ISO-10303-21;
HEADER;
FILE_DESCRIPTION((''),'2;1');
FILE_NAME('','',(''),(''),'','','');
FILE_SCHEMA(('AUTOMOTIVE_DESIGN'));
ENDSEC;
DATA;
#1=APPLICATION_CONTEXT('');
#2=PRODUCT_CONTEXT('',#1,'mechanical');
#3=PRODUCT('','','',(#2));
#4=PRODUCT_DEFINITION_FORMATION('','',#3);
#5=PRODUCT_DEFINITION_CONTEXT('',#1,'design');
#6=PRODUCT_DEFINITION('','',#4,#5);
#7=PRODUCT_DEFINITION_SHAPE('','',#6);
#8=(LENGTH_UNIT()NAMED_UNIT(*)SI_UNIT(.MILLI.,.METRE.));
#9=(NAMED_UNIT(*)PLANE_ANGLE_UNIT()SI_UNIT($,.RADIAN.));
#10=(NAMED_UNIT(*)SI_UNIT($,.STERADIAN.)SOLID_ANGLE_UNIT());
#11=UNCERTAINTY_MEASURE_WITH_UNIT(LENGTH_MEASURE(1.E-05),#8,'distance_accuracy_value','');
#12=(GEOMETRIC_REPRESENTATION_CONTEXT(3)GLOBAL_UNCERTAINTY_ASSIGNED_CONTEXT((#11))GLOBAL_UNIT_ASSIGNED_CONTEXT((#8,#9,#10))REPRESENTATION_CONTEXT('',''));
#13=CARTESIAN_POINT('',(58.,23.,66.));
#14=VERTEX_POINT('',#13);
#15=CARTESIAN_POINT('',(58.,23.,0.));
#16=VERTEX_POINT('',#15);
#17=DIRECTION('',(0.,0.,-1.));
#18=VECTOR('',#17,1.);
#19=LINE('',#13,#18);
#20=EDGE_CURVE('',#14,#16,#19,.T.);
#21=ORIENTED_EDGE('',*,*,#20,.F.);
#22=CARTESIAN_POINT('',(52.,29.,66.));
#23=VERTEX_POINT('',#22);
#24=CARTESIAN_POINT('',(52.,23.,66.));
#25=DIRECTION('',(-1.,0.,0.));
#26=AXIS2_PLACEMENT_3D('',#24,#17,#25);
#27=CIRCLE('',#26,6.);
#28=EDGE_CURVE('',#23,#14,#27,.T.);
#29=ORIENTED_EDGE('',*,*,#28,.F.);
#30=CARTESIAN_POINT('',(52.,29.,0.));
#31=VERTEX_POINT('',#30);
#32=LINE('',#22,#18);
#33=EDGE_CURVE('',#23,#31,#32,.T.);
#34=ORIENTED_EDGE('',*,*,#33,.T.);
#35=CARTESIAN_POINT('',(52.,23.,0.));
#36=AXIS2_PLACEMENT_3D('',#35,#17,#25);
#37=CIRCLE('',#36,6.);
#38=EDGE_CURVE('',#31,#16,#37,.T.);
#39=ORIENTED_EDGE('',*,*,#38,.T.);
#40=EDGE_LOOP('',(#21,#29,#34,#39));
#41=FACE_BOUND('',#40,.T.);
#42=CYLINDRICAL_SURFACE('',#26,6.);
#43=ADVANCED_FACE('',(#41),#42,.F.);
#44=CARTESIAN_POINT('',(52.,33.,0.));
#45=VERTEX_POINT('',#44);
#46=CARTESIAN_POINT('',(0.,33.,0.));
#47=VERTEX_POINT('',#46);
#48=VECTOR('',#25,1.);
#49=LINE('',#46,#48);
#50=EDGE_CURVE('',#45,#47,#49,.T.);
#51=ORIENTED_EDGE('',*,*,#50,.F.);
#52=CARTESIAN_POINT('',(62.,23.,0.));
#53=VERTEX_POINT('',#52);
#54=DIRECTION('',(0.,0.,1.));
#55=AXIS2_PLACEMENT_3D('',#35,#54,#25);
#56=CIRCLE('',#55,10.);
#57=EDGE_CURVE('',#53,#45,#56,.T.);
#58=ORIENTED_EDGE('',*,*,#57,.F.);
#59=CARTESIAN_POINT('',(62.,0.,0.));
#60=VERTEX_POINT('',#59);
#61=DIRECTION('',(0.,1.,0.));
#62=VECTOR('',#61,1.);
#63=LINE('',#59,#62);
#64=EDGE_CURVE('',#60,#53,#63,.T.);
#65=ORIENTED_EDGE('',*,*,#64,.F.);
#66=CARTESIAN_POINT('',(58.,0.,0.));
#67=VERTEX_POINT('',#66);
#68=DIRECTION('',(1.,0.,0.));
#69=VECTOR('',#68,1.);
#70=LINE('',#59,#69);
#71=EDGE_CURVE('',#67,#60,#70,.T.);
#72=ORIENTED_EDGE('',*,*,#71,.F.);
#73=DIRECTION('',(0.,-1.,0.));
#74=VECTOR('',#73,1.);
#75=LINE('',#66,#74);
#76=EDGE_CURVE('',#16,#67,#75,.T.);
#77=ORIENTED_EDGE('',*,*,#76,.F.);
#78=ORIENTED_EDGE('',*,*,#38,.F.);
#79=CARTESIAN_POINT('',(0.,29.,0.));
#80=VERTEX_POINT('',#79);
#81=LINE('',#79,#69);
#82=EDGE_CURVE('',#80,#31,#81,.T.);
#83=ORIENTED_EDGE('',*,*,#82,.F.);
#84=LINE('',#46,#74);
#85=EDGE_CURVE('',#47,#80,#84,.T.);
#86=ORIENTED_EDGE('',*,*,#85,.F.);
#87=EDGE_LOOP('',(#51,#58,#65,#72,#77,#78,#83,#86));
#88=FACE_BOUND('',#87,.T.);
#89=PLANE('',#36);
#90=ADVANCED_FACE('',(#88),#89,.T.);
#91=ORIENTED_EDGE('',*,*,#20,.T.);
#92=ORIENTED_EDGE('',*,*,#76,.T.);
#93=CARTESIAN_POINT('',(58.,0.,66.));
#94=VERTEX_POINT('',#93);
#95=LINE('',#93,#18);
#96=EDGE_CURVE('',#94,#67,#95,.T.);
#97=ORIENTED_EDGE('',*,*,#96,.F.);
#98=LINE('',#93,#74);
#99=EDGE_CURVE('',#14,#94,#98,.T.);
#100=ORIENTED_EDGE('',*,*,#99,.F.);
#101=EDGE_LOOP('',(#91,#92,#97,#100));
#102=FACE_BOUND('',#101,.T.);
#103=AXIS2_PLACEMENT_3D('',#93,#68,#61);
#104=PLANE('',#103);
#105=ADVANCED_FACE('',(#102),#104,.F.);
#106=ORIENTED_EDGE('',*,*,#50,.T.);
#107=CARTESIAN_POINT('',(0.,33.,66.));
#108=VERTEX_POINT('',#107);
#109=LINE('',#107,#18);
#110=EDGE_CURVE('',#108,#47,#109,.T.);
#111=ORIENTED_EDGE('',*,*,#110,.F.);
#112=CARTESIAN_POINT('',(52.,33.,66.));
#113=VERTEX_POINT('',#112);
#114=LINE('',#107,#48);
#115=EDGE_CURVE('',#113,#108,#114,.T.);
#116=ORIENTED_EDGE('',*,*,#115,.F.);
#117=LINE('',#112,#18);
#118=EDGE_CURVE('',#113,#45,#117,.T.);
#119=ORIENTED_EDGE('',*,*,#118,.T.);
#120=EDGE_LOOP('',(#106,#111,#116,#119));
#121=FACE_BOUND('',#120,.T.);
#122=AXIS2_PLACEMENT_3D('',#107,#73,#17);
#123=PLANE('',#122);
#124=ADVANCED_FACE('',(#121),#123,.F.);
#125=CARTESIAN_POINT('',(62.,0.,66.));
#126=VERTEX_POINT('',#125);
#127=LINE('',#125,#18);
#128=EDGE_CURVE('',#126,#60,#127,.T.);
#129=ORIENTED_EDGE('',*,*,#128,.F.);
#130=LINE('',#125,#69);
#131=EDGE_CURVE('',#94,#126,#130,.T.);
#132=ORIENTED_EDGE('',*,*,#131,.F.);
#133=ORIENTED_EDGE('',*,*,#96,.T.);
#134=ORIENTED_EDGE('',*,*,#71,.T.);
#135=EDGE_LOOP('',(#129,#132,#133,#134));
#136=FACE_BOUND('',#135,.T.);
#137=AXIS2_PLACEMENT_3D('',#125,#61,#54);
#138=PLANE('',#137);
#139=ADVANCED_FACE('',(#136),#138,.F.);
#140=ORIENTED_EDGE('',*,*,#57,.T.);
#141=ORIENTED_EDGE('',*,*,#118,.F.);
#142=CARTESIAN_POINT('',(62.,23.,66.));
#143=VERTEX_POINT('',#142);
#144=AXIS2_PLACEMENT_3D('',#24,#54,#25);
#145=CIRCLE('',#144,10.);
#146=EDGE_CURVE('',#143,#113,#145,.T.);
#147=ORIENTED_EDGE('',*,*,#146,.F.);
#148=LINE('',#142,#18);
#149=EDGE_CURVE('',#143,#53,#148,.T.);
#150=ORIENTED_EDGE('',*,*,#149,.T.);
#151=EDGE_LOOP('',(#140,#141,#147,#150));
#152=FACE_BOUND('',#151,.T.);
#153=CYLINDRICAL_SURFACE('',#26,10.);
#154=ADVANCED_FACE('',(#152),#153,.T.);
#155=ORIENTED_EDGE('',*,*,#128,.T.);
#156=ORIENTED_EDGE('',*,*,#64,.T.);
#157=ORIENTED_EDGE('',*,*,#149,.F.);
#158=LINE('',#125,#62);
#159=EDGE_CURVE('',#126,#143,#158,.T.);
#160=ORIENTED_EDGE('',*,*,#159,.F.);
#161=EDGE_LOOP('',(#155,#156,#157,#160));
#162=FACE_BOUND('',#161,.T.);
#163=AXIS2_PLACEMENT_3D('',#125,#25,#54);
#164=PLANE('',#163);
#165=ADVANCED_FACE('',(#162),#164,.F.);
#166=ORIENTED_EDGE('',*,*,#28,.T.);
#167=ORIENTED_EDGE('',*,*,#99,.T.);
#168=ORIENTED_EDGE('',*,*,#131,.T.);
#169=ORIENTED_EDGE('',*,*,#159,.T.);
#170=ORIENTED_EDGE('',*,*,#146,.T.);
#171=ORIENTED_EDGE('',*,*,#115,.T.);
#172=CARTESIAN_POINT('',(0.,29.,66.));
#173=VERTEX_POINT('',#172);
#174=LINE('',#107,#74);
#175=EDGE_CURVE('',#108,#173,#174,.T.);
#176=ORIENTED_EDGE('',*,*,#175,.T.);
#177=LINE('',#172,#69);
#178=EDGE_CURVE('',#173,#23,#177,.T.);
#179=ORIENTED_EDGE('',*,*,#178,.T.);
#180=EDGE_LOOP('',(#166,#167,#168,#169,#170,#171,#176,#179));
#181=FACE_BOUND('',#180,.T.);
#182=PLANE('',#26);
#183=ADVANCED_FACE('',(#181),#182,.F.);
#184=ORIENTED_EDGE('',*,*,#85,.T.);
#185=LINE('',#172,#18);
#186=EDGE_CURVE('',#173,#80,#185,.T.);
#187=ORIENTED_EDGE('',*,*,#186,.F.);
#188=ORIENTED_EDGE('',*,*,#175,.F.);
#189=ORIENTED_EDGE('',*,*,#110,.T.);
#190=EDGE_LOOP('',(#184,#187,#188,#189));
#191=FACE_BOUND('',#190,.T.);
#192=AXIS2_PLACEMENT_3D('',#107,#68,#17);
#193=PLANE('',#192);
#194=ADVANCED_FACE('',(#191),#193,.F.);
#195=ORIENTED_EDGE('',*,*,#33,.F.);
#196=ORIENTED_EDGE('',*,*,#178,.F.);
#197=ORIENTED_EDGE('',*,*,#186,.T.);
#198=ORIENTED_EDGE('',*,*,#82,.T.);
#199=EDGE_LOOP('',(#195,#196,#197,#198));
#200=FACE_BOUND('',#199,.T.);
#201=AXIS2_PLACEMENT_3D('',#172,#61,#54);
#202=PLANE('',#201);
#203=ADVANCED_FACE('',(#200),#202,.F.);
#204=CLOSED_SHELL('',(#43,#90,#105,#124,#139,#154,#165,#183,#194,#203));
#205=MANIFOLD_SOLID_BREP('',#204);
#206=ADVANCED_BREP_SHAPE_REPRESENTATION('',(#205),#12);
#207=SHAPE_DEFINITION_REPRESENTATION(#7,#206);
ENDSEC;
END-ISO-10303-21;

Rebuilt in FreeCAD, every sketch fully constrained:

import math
import FreeCAD as App
import Part
import Sketcher

V = App.Vector

doc = App.newDocument("Part")
body = doc.addObject("PartDesign::Body", "Body")

sketch1 = body.newObject("Sketcher::SketchObject", "Sketch")
sketch1.AttachmentSupport = (doc.getObject("XY_Plane"), [""])
sketch1.MapMode = "FlatFace"
sketch1.addGeometry(Part.LineSegment(V(0, 29, 0), V(52, 29, 0)), False)
sketch1.addGeometry(Part.ArcOfCircle(Part.Circle(V(52, 23, 0), V(0, 0, 1), 6), math.radians(0), math.radians(90)), False)
sketch1.addGeometry(Part.LineSegment(V(58, 23, 0), V(58, 0, 0)), False)
sketch1.addGeometry(Part.LineSegment(V(58, 0, 0), V(62, 0, 0)), False)
sketch1.addGeometry(Part.LineSegment(V(62, 0, 0), V(62, 23, 0)), False)
sketch1.addGeometry(Part.ArcOfCircle(Part.Circle(V(52, 23, 0), V(0, 0, 1), 10), math.radians(0), math.radians(90)), False)
sketch1.addGeometry(Part.LineSegment(V(52, 33, 0), V(0, 33, 0)), False)
sketch1.addGeometry(Part.LineSegment(V(0, 33, 0), V(0, 29, 0)), False)
sketch1.addConstraint(Sketcher.Constraint("Tangent", 0, 2, 1, 2))
sketch1.addConstraint(Sketcher.Constraint("Tangent", 1, 1, 2, 1))
sketch1.addConstraint(Sketcher.Constraint("Coincident", 2, 2, 3, 1))
sketch1.addConstraint(Sketcher.Constraint("Coincident", 3, 2, 4, 1))
sketch1.addConstraint(Sketcher.Constraint("Tangent", 4, 2, 5, 1))
sketch1.addConstraint(Sketcher.Constraint("Tangent", 5, 2, 6, 1))
sketch1.addConstraint(Sketcher.Constraint("Coincident", 6, 2, 7, 1))
sketch1.addConstraint(Sketcher.Constraint("Coincident", 7, 2, 0, 1))
sketch1.addConstraint(Sketcher.Constraint("Horizontal", 0))
sketch1.addConstraint(Sketcher.Constraint("Vertical", 2))
sketch1.addConstraint(Sketcher.Constraint("Horizontal", 3))
sketch1.addConstraint(Sketcher.Constraint("Vertical", 4))
sketch1.addConstraint(Sketcher.Constraint("Horizontal", 6))
sketch1.addConstraint(Sketcher.Constraint("Vertical", 7))
sketch1.addConstraint(Sketcher.Constraint("Coincident", 5, 3, 1, 3))
sketch1.addConstraint(Sketcher.Constraint("PointOnObject", 2, 2, -1))
sketch1.addConstraint(Sketcher.Constraint("PointOnObject", 6, 2, -2))
sketch1.addConstraint(Sketcher.Constraint("Radius", 1, 6.0))
sketch1.addConstraint(Sketcher.Constraint("Radius", 5, 10.0))
sketch1.addConstraint(Sketcher.Constraint("DistanceX", 0, 1, 0, 2, 52.0))
sketch1.addConstraint(Sketcher.Constraint("DistanceY", 2, 2, 2, 1, 23.0))
pad1 = body.newObject("PartDesign::Pad", "Pad")
pad1.Profile = sketch1
pad1.Length = 66

doc.recompute()
